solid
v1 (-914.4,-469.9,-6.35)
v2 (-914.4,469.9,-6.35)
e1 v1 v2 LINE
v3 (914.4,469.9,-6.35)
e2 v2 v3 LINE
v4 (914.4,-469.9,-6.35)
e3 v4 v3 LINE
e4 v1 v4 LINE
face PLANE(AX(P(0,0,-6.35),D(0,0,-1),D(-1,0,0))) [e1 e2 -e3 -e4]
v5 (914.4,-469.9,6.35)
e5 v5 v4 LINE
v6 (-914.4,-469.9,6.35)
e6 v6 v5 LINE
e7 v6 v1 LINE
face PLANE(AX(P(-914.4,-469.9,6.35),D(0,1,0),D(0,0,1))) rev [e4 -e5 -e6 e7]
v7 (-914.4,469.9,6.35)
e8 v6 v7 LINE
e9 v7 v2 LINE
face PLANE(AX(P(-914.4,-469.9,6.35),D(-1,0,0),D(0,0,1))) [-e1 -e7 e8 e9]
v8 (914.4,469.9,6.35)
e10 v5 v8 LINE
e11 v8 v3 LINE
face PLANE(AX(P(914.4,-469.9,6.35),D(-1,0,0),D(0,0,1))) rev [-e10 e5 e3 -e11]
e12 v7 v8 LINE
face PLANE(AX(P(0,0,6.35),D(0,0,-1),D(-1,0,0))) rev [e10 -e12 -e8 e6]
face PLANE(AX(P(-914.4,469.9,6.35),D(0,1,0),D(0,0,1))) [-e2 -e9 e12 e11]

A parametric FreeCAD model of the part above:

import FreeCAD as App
import Part
import Sketcher
from FreeCAD import Vector
Q = App.Units.Quantity


def add_polygon(sketch, points):
    """Adds a closed chain of lines whose ends are joined by coincident constraints."""
    first, n = sketch.GeometryCount, len(points)
    for a, b in zip(points, points[1:] + points[:1]):
        sketch.addGeometry(Part.LineSegment(App.Vector(*a, 0), App.Vector(*b, 0)), False)
    for i in range(n):
        sketch.addConstraint(Sketcher.Constraint("Coincident", first + i, 2, first + (i + 1) % n, 1))

doc = App.newDocument("Part")
body = doc.addObject("PartDesign::Body", "Body")

# Sketch on XY plane
sketch1 = doc.addObject("Sketcher::SketchObject", "Sketch")
body.addObject(sketch1)
sketch1.AttachmentSupport = (doc.XY_Plane, [""])
sketch1.MapMode = "FlatFace"
add_polygon(sketch1, [(-914, 470), (-914, -470), (914, -470), (914, 470)])  # lines 0-3
sketch1.addConstraint(Sketcher.Constraint("Vertical", 0))
sketch1.addConstraint(Sketcher.Constraint("Horizontal", 1))
sketch1.addConstraint(Sketcher.Constraint("Vertical", 2))
sketch1.addConstraint(Sketcher.Constraint("Horizontal", 3))
sketch1.addConstraint(Sketcher.Constraint("Symmetric", 0, 2, 2, 2, -1, 1))
sketch1.addConstraint(Sketcher.Constraint("DistanceX", 1, 1, 1, 2, Q("72 in")))
sketch1.addConstraint(Sketcher.Constraint("DistanceY", 0, 2, 0, 1, Q("37 in")))
pad1 = doc.addObject("PartDesign::Pad", "Pad")
body.addObject(pad1)
pad1.Profile = sketch1
pad1.Length = Q("0.5 in")
pad1.Midplane = True

doc.recompute()
